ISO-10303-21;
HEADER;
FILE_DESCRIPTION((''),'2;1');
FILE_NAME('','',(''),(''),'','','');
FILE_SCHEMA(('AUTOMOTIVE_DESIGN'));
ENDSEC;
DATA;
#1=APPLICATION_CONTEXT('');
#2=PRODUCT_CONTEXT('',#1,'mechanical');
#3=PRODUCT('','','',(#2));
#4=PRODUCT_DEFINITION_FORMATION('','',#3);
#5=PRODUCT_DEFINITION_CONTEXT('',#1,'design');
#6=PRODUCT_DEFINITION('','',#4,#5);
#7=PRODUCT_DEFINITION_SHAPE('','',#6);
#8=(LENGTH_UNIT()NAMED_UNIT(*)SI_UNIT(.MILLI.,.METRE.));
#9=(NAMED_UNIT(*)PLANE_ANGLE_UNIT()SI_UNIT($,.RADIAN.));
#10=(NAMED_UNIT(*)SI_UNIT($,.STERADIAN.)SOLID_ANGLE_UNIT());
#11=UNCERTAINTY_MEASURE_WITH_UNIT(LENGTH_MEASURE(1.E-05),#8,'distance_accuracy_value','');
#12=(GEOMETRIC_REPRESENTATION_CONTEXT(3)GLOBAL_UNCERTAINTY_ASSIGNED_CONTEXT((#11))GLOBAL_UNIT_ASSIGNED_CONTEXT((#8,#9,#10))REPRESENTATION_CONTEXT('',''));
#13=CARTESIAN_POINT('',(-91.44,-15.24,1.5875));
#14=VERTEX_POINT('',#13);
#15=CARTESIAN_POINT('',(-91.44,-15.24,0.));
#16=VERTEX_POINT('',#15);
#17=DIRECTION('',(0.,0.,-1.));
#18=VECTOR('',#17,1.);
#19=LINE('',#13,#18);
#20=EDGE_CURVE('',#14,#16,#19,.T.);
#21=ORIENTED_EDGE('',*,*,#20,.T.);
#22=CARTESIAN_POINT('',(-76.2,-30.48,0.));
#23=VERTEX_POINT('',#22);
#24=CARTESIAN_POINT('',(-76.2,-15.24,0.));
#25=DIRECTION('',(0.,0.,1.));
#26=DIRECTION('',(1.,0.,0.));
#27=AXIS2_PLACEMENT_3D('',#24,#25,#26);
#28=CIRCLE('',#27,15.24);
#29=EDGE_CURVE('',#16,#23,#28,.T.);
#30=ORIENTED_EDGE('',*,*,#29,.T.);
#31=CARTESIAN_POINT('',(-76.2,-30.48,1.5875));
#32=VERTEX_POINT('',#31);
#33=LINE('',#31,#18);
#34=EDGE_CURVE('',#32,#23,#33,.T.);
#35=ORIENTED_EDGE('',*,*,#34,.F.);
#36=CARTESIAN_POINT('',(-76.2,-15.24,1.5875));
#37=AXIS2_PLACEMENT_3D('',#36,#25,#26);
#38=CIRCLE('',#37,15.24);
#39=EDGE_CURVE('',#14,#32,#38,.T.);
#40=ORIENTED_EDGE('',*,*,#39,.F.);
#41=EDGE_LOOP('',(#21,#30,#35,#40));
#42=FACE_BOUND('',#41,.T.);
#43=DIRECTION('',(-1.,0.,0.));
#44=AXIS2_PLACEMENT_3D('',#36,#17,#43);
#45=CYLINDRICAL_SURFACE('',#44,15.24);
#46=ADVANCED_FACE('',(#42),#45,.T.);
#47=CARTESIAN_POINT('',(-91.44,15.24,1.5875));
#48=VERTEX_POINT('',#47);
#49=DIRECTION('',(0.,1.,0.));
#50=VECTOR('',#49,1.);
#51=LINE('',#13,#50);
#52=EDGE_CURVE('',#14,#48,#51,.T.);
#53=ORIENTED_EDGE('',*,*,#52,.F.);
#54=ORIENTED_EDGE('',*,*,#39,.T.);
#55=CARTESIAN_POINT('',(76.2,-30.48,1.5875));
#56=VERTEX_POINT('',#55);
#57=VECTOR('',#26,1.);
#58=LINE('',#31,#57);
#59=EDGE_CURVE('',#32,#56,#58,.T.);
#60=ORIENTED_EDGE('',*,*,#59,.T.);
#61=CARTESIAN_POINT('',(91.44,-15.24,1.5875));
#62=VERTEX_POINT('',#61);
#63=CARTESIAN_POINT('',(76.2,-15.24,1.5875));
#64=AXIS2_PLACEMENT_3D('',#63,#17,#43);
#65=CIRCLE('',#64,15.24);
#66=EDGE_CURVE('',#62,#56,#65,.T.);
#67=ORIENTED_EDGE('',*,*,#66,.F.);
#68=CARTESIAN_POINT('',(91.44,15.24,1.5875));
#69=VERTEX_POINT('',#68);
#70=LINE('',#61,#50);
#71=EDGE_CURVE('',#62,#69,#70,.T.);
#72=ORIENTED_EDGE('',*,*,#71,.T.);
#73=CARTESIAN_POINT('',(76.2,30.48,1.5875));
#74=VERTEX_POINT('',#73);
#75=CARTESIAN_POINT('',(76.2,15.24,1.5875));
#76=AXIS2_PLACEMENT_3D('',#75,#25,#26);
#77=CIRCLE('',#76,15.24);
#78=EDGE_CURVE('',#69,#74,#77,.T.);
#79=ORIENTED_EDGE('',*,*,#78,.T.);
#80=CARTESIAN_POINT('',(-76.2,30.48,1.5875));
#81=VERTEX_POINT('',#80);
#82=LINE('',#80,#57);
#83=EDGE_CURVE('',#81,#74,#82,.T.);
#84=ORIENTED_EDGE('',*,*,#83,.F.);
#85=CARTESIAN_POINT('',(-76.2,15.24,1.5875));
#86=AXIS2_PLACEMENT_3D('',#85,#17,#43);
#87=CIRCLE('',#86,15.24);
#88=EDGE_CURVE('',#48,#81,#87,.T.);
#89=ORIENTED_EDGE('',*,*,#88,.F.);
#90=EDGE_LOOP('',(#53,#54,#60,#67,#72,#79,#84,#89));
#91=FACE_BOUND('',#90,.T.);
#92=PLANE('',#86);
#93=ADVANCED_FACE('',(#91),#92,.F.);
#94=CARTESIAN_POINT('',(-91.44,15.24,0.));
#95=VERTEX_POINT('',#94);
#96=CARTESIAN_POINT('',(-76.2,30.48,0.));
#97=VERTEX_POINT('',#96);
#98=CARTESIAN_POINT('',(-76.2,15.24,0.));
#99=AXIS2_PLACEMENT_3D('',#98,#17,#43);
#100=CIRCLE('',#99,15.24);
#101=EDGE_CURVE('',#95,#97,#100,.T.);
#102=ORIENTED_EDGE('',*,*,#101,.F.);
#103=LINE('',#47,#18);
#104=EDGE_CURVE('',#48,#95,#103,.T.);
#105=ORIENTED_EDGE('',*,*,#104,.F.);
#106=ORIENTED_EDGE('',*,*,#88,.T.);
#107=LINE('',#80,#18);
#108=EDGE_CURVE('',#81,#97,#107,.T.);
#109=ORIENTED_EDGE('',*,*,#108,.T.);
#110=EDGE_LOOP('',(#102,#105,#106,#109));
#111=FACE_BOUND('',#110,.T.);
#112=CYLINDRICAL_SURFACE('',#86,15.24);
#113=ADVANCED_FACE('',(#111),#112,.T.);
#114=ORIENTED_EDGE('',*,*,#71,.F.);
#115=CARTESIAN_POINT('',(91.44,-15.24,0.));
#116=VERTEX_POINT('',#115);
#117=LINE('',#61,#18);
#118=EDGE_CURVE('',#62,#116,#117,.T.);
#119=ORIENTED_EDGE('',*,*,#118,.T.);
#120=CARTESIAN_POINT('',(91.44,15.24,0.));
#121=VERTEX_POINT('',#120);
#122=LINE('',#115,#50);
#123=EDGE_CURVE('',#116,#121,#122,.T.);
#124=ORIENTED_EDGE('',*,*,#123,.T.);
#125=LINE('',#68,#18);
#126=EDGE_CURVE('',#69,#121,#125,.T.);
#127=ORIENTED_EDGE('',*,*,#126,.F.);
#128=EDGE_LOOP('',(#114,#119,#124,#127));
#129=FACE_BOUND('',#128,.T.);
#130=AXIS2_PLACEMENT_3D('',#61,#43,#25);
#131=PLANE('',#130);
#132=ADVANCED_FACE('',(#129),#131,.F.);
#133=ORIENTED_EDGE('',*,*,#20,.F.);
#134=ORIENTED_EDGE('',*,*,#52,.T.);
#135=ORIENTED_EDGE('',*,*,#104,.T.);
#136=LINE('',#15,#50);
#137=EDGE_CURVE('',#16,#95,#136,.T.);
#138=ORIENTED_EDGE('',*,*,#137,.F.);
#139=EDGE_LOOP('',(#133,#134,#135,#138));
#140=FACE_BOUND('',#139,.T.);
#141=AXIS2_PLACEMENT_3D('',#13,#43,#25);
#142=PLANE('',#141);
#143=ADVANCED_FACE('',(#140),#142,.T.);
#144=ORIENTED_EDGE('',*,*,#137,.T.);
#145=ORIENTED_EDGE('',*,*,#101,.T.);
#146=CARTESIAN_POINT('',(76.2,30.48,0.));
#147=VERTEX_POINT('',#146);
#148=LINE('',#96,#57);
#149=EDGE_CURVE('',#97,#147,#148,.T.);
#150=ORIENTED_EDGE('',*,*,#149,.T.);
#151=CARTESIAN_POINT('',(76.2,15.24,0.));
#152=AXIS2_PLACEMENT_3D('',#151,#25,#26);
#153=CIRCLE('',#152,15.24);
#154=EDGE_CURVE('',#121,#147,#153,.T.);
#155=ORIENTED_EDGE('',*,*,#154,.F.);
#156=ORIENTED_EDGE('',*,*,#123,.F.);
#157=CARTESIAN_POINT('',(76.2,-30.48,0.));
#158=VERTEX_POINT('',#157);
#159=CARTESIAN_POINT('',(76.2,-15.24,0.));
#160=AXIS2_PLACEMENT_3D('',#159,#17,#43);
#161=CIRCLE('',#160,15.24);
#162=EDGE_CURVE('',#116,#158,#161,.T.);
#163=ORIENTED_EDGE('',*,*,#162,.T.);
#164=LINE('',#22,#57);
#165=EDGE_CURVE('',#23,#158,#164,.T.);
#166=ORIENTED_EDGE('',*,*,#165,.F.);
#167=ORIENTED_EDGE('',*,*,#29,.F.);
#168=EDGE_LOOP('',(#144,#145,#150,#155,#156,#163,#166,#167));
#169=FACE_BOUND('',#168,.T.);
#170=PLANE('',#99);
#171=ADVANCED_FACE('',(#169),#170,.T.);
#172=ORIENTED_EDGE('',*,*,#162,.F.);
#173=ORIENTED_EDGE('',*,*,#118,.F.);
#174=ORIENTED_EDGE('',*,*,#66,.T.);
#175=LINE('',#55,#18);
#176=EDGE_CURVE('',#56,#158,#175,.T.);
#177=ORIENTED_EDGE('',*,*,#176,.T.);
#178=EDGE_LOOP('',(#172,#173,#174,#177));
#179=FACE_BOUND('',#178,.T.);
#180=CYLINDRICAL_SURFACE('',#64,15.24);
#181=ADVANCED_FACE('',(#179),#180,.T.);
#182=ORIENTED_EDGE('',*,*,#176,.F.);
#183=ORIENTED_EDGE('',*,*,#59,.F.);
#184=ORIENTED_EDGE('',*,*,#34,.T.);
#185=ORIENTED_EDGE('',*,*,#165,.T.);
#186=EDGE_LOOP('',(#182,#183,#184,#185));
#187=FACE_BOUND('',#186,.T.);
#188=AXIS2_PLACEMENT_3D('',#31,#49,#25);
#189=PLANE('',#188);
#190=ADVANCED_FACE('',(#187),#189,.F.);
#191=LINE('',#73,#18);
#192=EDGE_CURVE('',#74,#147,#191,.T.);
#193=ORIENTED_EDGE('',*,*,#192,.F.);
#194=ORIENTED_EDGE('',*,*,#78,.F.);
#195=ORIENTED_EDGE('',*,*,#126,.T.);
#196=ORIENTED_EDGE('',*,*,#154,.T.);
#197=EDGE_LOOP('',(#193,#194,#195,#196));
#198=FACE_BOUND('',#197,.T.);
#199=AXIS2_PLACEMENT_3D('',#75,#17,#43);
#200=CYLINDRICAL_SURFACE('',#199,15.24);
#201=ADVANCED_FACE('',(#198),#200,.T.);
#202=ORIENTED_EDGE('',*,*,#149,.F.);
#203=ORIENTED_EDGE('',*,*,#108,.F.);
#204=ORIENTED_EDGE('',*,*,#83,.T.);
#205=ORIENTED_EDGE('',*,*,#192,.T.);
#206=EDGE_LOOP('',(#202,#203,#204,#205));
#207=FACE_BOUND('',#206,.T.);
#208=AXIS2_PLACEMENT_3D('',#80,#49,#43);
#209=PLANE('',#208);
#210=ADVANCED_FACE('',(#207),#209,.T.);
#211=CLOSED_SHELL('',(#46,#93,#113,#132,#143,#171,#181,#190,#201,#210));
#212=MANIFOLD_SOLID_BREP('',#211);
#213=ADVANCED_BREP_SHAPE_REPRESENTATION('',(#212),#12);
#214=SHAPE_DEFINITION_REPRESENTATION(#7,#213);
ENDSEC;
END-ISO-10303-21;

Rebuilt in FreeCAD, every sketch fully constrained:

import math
import FreeCAD as App
import Part
import Sketcher
Q = App.Units.Quantity

doc = App.newDocument("Part")
body = doc.addObject("PartDesign::Body", "Body")

# Sketch on XY plane
sketch1 = body.newObject("Sketcher::SketchObject", "Sketch")
sketch1.AttachmentSupport = (doc.getObject("XY_Plane"), [""])
sketch1.MapMode = "FlatFace"
sketch1.addGeometry([
    Part.LineSegment(App.Vector(-76, -30, 0), App.Vector(76, -30, 0)),  # 0
    Part.ArcOfCircle(Part.Circle(App.Vector(76, -15, 0), App.Vector(0, 0, 1), 15), math.radians(-90), math.radians(0)),  # 1
    Part.LineSegment(App.Vector(91, -15, 0), App.Vector(91, 15, 0)),  # 2
    Part.ArcOfCircle(Part.Circle(App.Vector(76, 15, 0), App.Vector(0, 0, 1), 15), math.radians(0), math.radians(90)),  # 3
    Part.LineSegment(App.Vector(76, 30, 0), App.Vector(-76, 30, 0)),  # 4
    Part.ArcOfCircle(Part.Circle(App.Vector(-76, 15, 0), App.Vector(0, 0, 1), 15), math.radians(90), math.radians(180)),  # 5
    Part.LineSegment(App.Vector(-91, 15, 0), App.Vector(-91, -15, 0)),  # 6
    Part.ArcOfCircle(Part.Circle(App.Vector(-76, -15, 0), App.Vector(0, 0, 1), 15), math.radians(-180), math.radians(-90)),  # 7
], False)
sketch1.addConstraint([
    Sketcher.Constraint("Tangent", 0, 2, 1, 1),
    Sketcher.Constraint("Tangent", 1, 2, 2, 1),
    Sketcher.Constraint("Tangent", 2, 2, 3, 1),
    Sketcher.Constraint("Tangent", 3, 2, 4, 1),
    Sketcher.Constraint("Tangent", 4, 2, 5, 1),
    Sketcher.Constraint("Tangent", 5, 2, 6, 1),
    Sketcher.Constraint("Tangent", 6, 2, 7, 1),
    Sketcher.Constraint("Tangent", 7, 2, 0, 1),
    Sketcher.Constraint("Horizontal", 0),
    Sketcher.Constraint("Vertical", 2),
    Sketcher.Constraint("Horizontal", 4),
    Sketcher.Constraint("Vertical", 6),
    Sketcher.Constraint("Equal", 1, 3),
    Sketcher.Constraint("Equal", 3, 5),
    Sketcher.Constraint("Equal", 5, 7),
    Sketcher.Constraint("Symmetric", 1, 3, 5, 3, -1, 1),
    Sketcher.Constraint("Radius", 1, Q("0.6 in")),
    Sketcher.Constraint("DistanceX", 0, 1, 0, 2, Q("6 in")),
    Sketcher.Constraint("DistanceY", 2, 1, 2, 2, Q("1.2 in")),
])
pad1 = body.newObject("PartDesign::Pad", "Pad")
pad1.Profile = sketch1
pad1.Length = Q("0.0625 in")

doc.recompute()
